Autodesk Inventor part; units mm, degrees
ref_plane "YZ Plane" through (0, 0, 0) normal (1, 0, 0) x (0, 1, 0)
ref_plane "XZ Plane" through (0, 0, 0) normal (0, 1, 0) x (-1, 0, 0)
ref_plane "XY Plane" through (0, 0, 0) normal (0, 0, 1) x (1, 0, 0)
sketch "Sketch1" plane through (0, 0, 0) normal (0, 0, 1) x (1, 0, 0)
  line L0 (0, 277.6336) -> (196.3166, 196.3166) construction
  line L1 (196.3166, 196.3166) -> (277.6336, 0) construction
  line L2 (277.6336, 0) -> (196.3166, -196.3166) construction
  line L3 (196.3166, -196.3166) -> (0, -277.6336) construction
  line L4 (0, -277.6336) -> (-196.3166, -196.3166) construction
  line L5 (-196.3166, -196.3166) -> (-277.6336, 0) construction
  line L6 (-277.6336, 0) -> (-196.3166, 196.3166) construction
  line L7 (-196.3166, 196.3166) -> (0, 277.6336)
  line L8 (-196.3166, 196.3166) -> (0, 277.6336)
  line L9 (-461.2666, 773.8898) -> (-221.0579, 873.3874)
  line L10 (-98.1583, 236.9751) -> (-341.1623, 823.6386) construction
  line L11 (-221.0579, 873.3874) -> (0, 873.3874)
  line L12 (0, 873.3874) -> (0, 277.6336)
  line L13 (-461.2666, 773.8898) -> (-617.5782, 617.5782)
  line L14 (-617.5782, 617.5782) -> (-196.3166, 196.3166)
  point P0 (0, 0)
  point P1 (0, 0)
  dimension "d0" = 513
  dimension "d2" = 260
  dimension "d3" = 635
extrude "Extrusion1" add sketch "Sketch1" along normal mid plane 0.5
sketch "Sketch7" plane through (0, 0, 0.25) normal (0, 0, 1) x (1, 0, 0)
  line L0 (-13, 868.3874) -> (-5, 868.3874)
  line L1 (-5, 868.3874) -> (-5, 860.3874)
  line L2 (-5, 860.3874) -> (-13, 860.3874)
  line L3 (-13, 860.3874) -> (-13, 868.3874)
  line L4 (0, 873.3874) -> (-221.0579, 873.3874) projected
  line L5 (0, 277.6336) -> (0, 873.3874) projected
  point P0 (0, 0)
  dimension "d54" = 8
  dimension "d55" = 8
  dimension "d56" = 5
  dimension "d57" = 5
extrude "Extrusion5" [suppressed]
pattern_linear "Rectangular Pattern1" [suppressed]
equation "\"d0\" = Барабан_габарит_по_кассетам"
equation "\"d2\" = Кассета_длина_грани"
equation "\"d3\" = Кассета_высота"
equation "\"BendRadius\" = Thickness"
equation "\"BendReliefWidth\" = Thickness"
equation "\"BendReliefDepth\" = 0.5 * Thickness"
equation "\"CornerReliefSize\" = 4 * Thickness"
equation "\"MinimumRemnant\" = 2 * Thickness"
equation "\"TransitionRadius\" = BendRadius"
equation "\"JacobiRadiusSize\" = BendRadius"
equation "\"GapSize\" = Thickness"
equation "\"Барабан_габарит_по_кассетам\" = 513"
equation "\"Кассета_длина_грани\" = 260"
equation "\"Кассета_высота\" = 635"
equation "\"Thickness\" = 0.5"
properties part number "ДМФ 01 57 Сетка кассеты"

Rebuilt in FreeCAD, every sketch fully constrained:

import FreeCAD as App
import Part
import Sketcher

V = App.Vector
Q = App.Units.Quantity

doc = App.newDocument("Part")
body = doc.addObject("PartDesign::Body", "Body")

# Sketch on XY plane
sketch1 = body.newObject("Sketcher::SketchObject", "Sketch")
sketch1.AttachmentSupport = (doc.getObject("XY_Plane"), [""])
sketch1.MapMode = "FlatFace"
sketch1.addGeometry([
    Part.LineSegment(V(-618, 618, 0), V(-196, 196, 0)),  # 0
    Part.LineSegment(V(-196, 196, 0), V(0, 278, 0)),  # 1
    Part.LineSegment(V(0, 278, 0), V(0, 873, 0)),  # 2
    Part.LineSegment(V(0, 873, 0), V(-221, 873, 0)),  # 3
    Part.LineSegment(V(-221, 873, 0), V(-461, 774, 0)),  # 4
    Part.LineSegment(V(-461, 774, 0), V(-618, 618, 0)),  # 5
], False)
sketch1.addConstraint([
    Sketcher.Constraint("Coincident", 0, 2, 1, 1),
    Sketcher.Constraint("Coincident", 1, 2, 2, 1),
    Sketcher.Constraint("Coincident", 2, 2, 3, 1),
    Sketcher.Constraint("Coincident", 3, 2, 4, 1),
    Sketcher.Constraint("Coincident", 4, 2, 5, 1),
    Sketcher.Constraint("Coincident", 5, 2, 0, 1),
    Sketcher.Constraint("Vertical", 2),
    Sketcher.Constraint("Horizontal", 3),
    Sketcher.Constraint("PointOnObject", 1, 2, -2),
    Sketcher.Constraint("Parallel", 1, 4),
    Sketcher.Constraint("Perpendicular", 0, 5),
    Sketcher.Constraint("Distance", 4, 260.0),
    Sketcher.Constraint("Angle", 0, Q("-45 deg")),
    Sketcher.Constraint("Angle", 1, Q("22.5 deg")),
    Sketcher.Constraint("DistanceX", 3, 2, 3, 1, 221.058),
    Sketcher.Constraint("DistanceX", 4, 2, 0, 2, 264.95),
    Sketcher.Constraint("Distance", 5, 221.058),
    Sketcher.Constraint("DistanceY", -1, 1, 0, 2, 196.3166),
])
pad1 = body.newObject("PartDesign::Pad", "Pad")
pad1.Profile = sketch1
pad1.Length = 0.5
pad1.Midplane = True

doc.recompute()
